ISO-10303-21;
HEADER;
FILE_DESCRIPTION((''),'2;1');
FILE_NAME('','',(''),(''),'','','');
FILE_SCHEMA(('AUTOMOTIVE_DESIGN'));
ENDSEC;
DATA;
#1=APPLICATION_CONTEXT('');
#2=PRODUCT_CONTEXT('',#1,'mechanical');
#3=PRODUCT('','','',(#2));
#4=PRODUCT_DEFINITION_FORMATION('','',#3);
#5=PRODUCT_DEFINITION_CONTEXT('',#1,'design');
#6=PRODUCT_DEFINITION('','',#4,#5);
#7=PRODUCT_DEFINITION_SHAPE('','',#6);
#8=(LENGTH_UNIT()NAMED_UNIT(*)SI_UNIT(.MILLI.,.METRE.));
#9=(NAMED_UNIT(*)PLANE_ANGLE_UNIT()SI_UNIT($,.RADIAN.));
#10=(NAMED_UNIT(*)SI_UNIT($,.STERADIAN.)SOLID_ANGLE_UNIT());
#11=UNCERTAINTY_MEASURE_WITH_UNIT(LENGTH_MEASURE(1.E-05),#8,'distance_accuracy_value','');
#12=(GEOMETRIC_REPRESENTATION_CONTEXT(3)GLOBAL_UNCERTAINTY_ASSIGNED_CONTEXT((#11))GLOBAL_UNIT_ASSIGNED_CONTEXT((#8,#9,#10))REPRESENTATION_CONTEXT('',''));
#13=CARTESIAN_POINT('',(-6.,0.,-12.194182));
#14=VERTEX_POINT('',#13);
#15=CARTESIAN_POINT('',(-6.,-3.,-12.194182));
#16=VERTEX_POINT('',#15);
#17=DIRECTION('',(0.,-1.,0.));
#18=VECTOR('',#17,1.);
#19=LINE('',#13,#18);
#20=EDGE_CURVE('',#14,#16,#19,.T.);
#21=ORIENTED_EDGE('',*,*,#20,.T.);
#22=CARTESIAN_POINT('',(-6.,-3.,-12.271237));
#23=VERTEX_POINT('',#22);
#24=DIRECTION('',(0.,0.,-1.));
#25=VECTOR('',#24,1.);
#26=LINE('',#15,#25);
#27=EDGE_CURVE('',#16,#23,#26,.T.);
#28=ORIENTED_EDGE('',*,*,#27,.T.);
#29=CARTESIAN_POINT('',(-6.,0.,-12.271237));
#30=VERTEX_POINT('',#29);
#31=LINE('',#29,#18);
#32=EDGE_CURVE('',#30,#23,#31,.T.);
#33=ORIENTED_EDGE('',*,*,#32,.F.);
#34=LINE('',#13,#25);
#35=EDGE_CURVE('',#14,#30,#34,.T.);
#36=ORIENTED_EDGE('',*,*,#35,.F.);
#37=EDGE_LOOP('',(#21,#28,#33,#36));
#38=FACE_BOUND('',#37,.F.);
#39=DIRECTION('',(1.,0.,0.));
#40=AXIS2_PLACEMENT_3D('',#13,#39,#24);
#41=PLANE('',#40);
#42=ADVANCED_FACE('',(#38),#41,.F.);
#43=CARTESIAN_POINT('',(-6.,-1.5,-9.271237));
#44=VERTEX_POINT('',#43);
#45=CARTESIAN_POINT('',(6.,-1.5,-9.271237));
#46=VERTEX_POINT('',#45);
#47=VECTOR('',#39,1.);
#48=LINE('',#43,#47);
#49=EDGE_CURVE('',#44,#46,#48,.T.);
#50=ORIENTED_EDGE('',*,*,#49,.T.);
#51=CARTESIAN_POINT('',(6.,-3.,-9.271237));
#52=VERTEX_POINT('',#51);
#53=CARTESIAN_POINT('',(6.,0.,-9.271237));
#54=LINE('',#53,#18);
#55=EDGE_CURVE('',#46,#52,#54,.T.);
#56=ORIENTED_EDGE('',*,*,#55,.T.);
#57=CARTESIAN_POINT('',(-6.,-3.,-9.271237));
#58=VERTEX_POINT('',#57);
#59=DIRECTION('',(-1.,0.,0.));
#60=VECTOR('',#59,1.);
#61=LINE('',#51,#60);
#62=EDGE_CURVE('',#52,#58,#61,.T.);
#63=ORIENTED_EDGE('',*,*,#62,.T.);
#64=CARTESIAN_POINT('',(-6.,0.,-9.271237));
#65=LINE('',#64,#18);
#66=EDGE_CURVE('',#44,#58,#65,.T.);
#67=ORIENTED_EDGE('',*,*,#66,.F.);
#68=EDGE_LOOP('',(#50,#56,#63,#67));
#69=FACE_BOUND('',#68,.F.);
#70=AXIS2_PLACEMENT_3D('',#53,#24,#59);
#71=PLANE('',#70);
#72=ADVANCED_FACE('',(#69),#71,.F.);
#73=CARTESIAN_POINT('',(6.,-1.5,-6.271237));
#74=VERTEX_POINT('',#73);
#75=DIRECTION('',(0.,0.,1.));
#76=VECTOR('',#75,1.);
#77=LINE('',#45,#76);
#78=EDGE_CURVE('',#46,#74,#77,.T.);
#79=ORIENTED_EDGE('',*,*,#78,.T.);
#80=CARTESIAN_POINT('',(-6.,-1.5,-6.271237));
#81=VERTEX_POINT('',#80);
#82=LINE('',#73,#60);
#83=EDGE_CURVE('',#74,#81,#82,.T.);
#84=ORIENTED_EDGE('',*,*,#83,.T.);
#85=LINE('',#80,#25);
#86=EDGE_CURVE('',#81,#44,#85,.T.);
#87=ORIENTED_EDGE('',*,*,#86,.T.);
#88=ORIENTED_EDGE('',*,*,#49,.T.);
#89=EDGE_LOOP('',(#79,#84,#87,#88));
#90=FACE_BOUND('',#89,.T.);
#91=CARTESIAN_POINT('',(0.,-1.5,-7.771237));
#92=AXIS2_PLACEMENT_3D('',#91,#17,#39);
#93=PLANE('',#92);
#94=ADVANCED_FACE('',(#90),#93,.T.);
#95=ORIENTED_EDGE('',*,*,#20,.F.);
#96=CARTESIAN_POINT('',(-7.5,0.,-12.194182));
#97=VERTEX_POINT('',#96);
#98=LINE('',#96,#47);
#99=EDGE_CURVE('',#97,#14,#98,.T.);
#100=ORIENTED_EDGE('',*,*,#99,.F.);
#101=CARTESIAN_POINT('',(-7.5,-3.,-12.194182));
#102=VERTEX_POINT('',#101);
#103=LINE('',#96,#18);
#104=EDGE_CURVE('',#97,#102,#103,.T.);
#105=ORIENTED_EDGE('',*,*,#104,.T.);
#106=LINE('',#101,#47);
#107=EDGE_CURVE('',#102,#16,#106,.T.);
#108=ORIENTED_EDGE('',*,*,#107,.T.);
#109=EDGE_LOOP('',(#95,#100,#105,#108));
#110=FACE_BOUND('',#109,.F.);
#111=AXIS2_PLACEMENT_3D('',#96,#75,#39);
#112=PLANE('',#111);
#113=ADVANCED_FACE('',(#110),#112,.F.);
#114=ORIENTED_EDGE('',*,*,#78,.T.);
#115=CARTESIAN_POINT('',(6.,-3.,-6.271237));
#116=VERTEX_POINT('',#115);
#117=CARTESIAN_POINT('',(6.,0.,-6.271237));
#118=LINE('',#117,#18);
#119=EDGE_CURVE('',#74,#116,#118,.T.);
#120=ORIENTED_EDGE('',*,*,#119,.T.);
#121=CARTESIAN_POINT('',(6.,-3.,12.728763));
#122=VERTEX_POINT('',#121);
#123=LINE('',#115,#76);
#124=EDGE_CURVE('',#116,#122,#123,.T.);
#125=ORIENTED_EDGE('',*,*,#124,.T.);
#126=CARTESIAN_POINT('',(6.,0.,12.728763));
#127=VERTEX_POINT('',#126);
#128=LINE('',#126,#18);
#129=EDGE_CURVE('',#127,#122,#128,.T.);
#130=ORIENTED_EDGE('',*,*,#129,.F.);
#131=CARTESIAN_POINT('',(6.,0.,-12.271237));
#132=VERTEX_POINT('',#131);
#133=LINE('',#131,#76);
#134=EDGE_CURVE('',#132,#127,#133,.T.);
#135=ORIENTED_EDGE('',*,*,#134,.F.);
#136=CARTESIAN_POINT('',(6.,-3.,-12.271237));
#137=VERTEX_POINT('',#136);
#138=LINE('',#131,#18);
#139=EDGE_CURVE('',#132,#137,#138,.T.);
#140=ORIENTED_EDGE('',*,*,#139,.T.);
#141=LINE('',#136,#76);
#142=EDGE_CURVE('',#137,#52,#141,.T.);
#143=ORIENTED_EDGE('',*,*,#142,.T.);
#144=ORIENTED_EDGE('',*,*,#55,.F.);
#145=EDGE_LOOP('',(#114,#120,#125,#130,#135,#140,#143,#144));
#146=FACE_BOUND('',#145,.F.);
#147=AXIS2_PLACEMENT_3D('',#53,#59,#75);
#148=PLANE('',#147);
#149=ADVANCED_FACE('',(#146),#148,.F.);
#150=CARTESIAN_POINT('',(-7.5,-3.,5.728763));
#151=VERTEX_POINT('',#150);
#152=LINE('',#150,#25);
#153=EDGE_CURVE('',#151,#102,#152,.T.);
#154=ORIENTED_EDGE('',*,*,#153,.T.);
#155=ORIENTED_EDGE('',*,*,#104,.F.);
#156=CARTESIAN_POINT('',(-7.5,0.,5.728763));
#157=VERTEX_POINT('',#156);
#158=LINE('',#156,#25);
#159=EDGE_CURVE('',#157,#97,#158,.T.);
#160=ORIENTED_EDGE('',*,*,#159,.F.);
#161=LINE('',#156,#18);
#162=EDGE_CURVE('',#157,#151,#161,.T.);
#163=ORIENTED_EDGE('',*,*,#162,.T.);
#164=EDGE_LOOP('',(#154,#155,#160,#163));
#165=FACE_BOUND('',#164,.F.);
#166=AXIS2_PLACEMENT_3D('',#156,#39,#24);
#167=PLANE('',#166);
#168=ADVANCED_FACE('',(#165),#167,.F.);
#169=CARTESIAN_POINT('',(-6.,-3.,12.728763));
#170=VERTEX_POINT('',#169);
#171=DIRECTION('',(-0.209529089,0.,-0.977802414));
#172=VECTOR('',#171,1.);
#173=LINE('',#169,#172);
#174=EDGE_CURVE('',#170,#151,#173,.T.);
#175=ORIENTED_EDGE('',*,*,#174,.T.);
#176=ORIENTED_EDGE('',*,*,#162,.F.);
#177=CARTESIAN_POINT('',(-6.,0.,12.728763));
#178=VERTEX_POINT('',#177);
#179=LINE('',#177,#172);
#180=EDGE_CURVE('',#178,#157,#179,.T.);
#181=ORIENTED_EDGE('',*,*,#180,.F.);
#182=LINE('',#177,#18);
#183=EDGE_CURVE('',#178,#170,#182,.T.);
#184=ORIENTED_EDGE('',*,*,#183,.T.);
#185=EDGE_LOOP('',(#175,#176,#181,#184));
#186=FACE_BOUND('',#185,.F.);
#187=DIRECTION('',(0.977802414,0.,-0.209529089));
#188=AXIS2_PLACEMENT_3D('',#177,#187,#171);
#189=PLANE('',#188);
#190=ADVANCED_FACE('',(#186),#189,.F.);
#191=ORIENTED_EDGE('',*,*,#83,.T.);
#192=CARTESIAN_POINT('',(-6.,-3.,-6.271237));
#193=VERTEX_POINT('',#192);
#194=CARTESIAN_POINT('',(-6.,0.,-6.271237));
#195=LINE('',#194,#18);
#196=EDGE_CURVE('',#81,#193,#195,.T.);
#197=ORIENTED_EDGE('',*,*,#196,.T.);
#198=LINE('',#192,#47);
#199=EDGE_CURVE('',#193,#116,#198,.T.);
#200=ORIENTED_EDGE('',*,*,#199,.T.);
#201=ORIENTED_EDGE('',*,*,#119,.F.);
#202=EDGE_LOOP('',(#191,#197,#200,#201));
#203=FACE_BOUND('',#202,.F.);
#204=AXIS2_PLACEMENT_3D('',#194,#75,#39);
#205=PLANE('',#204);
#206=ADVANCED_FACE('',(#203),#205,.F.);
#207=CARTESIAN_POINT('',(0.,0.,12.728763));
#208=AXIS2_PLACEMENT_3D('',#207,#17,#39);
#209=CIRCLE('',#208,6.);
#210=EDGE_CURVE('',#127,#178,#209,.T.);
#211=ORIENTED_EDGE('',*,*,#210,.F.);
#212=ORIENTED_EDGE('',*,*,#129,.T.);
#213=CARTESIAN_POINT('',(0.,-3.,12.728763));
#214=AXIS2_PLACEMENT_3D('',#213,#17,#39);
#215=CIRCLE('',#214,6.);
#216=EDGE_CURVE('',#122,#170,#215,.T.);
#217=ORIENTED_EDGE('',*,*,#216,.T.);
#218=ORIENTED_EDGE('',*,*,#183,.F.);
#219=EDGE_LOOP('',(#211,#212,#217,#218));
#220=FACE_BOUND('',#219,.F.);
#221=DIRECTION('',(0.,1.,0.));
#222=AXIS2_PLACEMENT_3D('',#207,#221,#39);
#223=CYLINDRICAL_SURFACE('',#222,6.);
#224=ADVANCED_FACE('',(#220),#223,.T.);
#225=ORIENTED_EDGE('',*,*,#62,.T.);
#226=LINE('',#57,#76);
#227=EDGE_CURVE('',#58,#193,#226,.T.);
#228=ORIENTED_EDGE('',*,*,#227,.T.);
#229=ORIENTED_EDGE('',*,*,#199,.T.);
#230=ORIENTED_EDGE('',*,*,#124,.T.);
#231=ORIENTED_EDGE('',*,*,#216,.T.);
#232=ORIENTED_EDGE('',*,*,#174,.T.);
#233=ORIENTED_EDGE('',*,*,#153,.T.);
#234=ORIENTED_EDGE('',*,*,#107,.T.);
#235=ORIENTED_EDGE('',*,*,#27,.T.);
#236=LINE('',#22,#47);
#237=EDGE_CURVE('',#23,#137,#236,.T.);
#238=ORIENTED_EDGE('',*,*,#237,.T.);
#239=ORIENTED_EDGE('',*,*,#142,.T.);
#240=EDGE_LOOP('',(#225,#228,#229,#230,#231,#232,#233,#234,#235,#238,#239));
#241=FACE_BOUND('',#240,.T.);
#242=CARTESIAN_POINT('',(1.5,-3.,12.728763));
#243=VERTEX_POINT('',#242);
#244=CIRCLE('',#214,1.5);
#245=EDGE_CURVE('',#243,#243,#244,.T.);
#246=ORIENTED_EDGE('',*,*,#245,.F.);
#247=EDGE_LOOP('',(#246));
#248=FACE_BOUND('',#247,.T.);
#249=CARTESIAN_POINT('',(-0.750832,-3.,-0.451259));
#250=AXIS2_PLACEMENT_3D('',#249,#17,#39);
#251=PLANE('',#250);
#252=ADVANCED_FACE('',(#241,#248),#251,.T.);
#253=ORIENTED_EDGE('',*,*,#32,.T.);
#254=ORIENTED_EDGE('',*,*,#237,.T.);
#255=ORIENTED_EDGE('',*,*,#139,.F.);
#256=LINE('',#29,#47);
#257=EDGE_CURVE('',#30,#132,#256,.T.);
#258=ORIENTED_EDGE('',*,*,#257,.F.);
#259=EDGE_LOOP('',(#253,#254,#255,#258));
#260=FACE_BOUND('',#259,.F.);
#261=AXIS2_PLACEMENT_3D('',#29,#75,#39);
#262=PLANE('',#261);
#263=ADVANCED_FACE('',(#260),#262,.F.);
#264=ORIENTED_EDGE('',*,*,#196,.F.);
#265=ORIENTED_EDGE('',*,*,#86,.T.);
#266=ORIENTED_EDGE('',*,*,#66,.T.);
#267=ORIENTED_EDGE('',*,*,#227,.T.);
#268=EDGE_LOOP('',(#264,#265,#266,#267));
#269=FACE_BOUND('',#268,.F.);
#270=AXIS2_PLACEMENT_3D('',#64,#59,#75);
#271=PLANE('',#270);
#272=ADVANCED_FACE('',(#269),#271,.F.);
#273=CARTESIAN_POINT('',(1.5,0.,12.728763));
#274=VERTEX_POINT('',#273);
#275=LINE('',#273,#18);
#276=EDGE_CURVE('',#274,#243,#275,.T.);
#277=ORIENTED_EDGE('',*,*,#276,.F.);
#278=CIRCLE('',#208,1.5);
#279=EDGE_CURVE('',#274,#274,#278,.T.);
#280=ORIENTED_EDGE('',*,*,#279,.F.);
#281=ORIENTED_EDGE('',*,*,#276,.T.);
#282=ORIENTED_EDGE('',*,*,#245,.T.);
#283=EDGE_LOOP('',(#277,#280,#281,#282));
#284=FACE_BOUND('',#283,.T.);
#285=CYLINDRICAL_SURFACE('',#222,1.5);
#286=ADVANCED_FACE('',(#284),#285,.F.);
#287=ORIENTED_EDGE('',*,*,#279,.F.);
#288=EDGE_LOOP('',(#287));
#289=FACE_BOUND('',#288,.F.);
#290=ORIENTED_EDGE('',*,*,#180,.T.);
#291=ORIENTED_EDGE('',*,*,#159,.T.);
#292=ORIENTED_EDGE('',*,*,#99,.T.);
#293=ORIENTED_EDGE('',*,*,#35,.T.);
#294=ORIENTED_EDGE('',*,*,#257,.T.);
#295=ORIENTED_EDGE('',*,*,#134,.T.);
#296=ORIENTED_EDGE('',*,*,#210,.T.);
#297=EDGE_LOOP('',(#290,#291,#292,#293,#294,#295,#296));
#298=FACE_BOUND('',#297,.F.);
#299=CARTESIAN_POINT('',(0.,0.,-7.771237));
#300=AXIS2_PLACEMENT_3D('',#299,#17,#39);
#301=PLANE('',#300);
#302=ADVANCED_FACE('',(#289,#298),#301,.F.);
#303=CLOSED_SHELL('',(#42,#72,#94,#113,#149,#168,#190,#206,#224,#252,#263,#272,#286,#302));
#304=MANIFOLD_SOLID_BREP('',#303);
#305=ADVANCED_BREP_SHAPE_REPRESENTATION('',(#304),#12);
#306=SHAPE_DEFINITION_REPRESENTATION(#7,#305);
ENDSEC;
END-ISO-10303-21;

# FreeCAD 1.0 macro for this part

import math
import FreeCAD as App
import Part
import Sketcher
from FreeCAD import Vector


def add_polygon(sketch, points):
    """Adds a closed chain of lines whose ends are joined by coincident constraints."""
    first, n = sketch.GeometryCount, len(points)
    for a, b in zip(points, points[1:] + points[:1]):
        sketch.addGeometry(Part.LineSegment(App.Vector(*a, 0), App.Vector(*b, 0)), False)
    for i in range(n):
        sketch.addConstraint(Sketcher.Constraint("Coincident", first + i, 2, first + (i + 1) % n, 1))

doc = App.newDocument("Part")
body = doc.addObject("PartDesign::Body", "Body")

sketch1 = doc.addObject("Sketcher::SketchObject", "Sketch")
body.addObject(sketch1)
sketch1.AttachmentSupport = (doc.XZ_Plane, [""])
sketch1.MapMode = "FlatFace"
sketch1.addGeometry([
    Part.LineSegment(Vector(-6, -9.27, 0), Vector(-6, -6.27, 0)),
    Part.LineSegment(Vector(-6, -6.27, 0), Vector(6, -6.27, 0)),
    Part.LineSegment(Vector(6, -6.27, 0), Vector(6, 12.73, 0)),
    Part.ArcOfCircle(Part.Circle(Vector(0, 12.73, 0), Vector(0, 0, 1), 6), math.radians(0), math.radians(180)),
    Part.LineSegment(Vector(-6, 12.73, 0), Vector(-7.5, 5.73, 0)),
    Part.LineSegment(Vector(-7.5, 5.73, 0), Vector(-7.5, -12.19, 0)),
    Part.LineSegment(Vector(-7.5, -12.19, 0), Vector(-6, -12.19, 0)),
    Part.LineSegment(Vector(-6, -12.19, 0), Vector(-6, -12.27, 0)),
    Part.LineSegment(Vector(-6, -12.27, 0), Vector(6, -12.27, 0)),
    Part.LineSegment(Vector(6, -12.27, 0), Vector(6, -9.27, 0)),
    Part.LineSegment(Vector(6, -9.27, 0), Vector(-6, -9.27, 0)),
    Part.Circle(Vector(0, 12.73, 0), Vector(0, 0, 1), 1.5),
], False)
sketch1.addConstraint([
    Sketcher.Constraint("Coincident", 0, 2, 1, 1),
    Sketcher.Constraint("Coincident", 1, 2, 2, 1),
    Sketcher.Constraint("Tangent", 2, 2, 3, 1),
    Sketcher.Constraint("Coincident", 3, 2, 4, 1),
    Sketcher.Constraint("Coincident", 4, 2, 5, 1),
    Sketcher.Constraint("Coincident", 5, 2, 6, 1),
    Sketcher.Constraint("Coincident", 6, 2, 7, 1),
    Sketcher.Constraint("Coincident", 7, 2, 8, 1),
    Sketcher.Constraint("Coincident", 8, 2, 9, 1),
    Sketcher.Constraint("Coincident", 9, 2, 10, 1),
    Sketcher.Constraint("Coincident", 10, 2, 0, 1),
    Sketcher.Constraint("Vertical", 0),
    Sketcher.Constraint("Horizontal", 1),
    Sketcher.Constraint("Vertical", 2),
    Sketcher.Constraint("Vertical", 5),
    Sketcher.Constraint("Horizontal", 6),
    Sketcher.Constraint("Vertical", 7),
    Sketcher.Constraint("Horizontal", 8),
    Sketcher.Constraint("Vertical", 9),
    Sketcher.Constraint("Horizontal", 10),
    Sketcher.Constraint("Coincident", 11, 3, 3, 3),
    Sketcher.Constraint("Symmetric", 2, 2, 3, 2, -2),
    Sketcher.Constraint("Vertical", 0, 2, 3, 2),
    Sketcher.Constraint("Vertical", 3, 2, 6, 2),
    Sketcher.Constraint("Vertical", 2, 2, 8, 2),
    Sketcher.Constraint("Equal", 0, 9),
    Sketcher.Constraint("Diameter", 11, 3.0),
    Sketcher.Constraint("Radius", 3, 6.0),
    Sketcher.Constraint("DistanceY", 0, 1, 0, 2, 3.0),
    Sketcher.Constraint("DistanceY", 2, 1, 2, 2, 19.0),
    Sketcher.Constraint("DistanceX", 6, 1, 6, 2, 1.5),
    Sketcher.Constraint("DistanceY", 4, 2, 3, 2, 7.0),
    Sketcher.Constraint("DistanceY", 5, 2, 5, 1, 17.922945),
    Sketcher.Constraint("DistanceY", 5, 2, -1, 1, 12.194182),
])
pad1 = doc.addObject("PartDesign::Pad", "Pad")
body.addObject(pad1)
pad1.Profile = sketch1
pad1.Length = 3

sketch2 = doc.addObject("Sketcher::SketchObject", "Sketch001")
body.addObject(sketch2)
sketch2.AttachmentSupport = (doc.XZ_Plane, [""])
sketch2.MapMode = "FlatFace"
add_polygon(sketch2, [(-6, -6.3), (-6, -9.3), (6, -9.3), (6, -6.3)])
sketch2.addConstraint([
    Sketcher.Constraint("Vertical", 0),
    Sketcher.Constraint("Horizontal", 1),
    Sketcher.Constraint("Vertical", 2),
    Sketcher.Constraint("Horizontal", 3),
    Sketcher.Constraint("DistanceX", 1, 1, 1, 2, 12.0),
    Sketcher.Constraint("DistanceY", 0, 2, 0, 1, 3.0),
    Sketcher.Constraint("DistanceX", 0, 2, -1, 1, 6.0),
    Sketcher.Constraint("DistanceY", 0, 2, -1, 1, 9.271237),
])
pad2 = doc.addObject("PartDesign::Pad", "Pad001")
body.addObject(pad2)
pad2.Profile = sketch2
pad2.Length = 1.5

doc.recompute()
